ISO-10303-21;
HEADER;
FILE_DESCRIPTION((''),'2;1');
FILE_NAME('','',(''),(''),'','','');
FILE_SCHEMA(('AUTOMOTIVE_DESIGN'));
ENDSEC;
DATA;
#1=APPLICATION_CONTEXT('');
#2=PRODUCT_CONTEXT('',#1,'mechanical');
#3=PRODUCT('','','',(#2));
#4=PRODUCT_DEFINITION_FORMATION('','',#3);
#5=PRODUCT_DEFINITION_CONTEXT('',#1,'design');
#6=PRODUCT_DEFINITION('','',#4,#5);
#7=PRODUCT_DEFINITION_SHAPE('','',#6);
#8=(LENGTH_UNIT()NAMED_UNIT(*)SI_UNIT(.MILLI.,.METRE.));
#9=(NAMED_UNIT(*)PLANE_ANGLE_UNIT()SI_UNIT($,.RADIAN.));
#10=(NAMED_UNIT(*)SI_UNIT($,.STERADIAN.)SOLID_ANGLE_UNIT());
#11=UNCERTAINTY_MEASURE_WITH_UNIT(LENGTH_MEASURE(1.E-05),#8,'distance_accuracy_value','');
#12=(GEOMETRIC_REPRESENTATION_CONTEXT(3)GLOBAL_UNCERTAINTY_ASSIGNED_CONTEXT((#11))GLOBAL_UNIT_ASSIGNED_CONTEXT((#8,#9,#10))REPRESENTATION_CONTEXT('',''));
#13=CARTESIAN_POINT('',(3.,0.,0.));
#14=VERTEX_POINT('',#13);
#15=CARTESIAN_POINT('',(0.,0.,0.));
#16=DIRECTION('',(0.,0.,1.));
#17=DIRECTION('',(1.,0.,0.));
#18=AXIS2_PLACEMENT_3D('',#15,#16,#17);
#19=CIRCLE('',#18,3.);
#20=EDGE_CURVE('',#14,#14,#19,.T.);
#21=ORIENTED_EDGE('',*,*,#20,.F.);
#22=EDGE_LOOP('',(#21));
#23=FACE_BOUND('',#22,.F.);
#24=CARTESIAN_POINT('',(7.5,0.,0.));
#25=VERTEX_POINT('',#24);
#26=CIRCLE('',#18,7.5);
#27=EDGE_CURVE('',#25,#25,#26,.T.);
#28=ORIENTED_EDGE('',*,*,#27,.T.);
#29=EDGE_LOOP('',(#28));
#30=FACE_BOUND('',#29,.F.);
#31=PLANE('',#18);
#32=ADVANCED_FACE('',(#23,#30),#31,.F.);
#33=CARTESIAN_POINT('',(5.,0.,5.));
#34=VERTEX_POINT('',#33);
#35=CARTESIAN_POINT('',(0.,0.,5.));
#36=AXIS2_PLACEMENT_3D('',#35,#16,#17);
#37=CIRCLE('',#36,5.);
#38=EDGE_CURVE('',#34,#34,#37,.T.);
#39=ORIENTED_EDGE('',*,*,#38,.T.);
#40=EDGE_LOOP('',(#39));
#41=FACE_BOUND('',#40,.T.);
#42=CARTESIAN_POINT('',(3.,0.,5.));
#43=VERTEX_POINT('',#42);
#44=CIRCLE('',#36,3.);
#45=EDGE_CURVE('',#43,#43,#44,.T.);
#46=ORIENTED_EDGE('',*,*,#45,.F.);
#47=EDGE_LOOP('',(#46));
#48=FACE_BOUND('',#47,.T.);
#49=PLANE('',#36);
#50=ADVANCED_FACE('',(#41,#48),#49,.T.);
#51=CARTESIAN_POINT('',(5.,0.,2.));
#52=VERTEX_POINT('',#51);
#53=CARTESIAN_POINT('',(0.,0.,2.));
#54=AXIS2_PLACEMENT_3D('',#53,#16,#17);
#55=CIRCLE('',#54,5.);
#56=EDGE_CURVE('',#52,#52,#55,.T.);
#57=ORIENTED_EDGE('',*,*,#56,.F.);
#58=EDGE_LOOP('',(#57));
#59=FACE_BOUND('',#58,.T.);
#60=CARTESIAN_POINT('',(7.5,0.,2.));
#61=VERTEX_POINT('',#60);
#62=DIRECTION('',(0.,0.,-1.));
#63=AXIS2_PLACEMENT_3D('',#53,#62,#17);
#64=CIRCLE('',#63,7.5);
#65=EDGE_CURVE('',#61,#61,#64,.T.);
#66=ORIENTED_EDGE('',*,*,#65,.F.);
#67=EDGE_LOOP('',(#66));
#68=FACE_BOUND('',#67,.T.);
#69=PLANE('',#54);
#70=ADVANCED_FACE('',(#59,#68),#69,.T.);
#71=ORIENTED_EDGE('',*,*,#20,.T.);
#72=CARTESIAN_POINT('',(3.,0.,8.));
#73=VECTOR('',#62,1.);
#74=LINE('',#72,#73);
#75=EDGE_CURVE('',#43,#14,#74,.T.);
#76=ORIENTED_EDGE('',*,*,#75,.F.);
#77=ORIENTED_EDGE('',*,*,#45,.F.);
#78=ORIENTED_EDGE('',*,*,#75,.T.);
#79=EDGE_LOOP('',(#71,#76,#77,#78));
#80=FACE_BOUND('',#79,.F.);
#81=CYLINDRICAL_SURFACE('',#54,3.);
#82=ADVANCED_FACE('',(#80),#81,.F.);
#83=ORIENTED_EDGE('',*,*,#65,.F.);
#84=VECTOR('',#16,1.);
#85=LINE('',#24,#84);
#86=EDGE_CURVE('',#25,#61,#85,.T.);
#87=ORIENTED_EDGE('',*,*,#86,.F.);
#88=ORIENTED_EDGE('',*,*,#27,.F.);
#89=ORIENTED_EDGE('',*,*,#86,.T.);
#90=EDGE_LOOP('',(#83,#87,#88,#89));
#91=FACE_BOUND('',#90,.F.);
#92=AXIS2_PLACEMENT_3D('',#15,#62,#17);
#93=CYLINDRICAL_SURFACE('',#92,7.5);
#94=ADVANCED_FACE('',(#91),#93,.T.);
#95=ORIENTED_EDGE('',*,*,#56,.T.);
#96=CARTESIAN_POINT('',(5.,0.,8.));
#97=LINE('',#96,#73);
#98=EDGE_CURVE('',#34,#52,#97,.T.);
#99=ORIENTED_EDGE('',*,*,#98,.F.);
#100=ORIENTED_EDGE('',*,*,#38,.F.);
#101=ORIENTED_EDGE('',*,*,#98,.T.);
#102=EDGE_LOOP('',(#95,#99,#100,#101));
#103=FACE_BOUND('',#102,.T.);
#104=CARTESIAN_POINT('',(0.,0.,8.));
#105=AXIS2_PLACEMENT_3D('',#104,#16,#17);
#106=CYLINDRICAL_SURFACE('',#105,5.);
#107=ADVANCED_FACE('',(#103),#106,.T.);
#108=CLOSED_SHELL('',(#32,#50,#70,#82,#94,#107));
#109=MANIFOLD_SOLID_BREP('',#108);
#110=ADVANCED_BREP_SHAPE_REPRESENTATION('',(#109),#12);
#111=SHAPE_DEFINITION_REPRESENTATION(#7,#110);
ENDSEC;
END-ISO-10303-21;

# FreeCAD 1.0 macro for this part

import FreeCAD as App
import Part
import Sketcher

doc = App.newDocument("Part")
body = doc.addObject("PartDesign::Body", "Body")

sketch1 = body.newObject("Sketcher::SketchObject", "Sketch")
sketch1.AttachmentSupport = (doc.getObject("XY_Plane"), [""])
sketch1.MapMode = "FlatFace"
sketch1.addGeometry(Part.Circle(App.Vector(0, 0, 0), App.Vector(0, 0, 1), 8), False)
sketch1.addConstraint([
    Sketcher.Constraint("Coincident", 0, 3, -1, 1),
    Sketcher.Constraint("Diameter", 0, 15.0),
])
pad1 = body.newObject("PartDesign::Pad", "Pad")
pad1.Profile = sketch1
pad1.Length = 8

sketch2 = body.newObject("Sketcher::SketchObject", "Sketch001")
sketch2.AttachmentSupport = (doc.getObject("XY_Plane"), [""])
sketch2.MapMode = "FlatFace"
sketch2.AttachmentOffset = App.Placement(App.Vector(0, 0, 8), App.Rotation())
sketch2.addGeometry([
    Part.Circle(App.Vector(0, 0, 0), App.Vector(0, 0, 1), 3),
    Part.Circle(App.Vector(0, 0, 0), App.Vector(0, 0, 1), 10),
    Part.Circle(App.Vector(0, 0, 0), App.Vector(0, 0, 1), 5),
], False)
sketch2.addConstraint([
    Sketcher.Constraint("Coincident", 0, 3, -1, 1),
    Sketcher.Constraint("Coincident", 1, 3, -1, 1),
    Sketcher.Constraint("Coincident", 2, 3, -1, 1),
    Sketcher.Constraint("Diameter", 0, 6.0),
    Sketcher.Constraint("Diameter", 1, 20.0),
    Sketcher.Constraint("Diameter", 2, 10.0),
])
pocket1 = body.newObject("PartDesign::Pocket", "Pocket")
pocket1.Profile = sketch2
pocket1.Length = 6

sketch3 = body.newObject("Sketcher::SketchObject", "Sketch002")
sketch3.AttachmentSupport = (doc.getObject("XY_Plane"), [""])
sketch3.MapMode = "FlatFace"
sketch3.AttachmentOffset = App.Placement(App.Vector(0, 0, 2), App.Rotation())
sketch3.addGeometry(Part.Circle(App.Vector(0, 0, 0), App.Vector(0, 0, 1), 3), False)
sketch3.addConstraint([
    Sketcher.Constraint("Coincident", 0, 3, -1, 1),
    Sketcher.Constraint("Diameter", 0, 6.0),
])
pocket2 = body.newObject("PartDesign::Pocket", "Pocket001")
pocket2.Profile = sketch3
pocket2.Length = 5

sketch4 = body.newObject("Sketcher::SketchObject", "Sketch003")
sketch4.AttachmentSupport = (doc.getObject("XY_Plane"), [""])
sketch4.MapMode = "FlatFace"
sketch4.AttachmentOffset = App.Placement(App.Vector(0, 0, 8), App.Rotation())
sketch4.addGeometry(Part.Circle(App.Vector(0, 0, 0), App.Vector(0, 0, 1), 11), False)
sketch4.addConstraint([
    Sketcher.Constraint("Coincident", 0, 3, -1, 1),
    Sketcher.Constraint("Diameter", 0, 21.398),
])
pocket3 = body.newObject("PartDesign::Pocket", "Pocket002")
pocket3.Profile = sketch4
pocket3.Length = 3

doc.recompute()
